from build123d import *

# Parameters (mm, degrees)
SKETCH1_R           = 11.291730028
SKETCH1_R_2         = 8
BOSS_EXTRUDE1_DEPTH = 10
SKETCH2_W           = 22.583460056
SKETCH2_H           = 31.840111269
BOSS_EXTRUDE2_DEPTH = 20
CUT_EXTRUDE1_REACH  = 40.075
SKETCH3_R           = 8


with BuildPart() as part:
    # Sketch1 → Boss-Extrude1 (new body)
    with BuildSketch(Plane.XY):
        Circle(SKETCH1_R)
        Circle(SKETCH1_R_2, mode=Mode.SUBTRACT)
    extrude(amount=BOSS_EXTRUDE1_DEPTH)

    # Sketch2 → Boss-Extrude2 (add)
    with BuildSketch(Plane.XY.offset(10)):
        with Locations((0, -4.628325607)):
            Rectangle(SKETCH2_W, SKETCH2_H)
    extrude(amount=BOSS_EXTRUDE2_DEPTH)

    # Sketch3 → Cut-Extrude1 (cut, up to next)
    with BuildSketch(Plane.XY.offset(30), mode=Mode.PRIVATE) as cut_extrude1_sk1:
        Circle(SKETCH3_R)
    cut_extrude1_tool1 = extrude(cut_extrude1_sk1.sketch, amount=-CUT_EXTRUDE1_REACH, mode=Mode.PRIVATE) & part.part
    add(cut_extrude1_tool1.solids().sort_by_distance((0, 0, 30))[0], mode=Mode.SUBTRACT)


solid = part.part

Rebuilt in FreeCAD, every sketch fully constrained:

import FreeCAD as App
import Part
import Sketcher
Q = App.Units.Quantity

doc = App.newDocument("Part")
body = doc.addObject("PartDesign::Body", "Body")

# Sketch on XY plane
sketch1 = body.newObject("Sketcher::SketchObject", "Sketch")
sketch1.AttachmentSupport = (doc.getObject("XY_Plane"), [""])
sketch1.MapMode = "FlatFace"
sketch1.addGeometry(Part.Circle(App.Vector(0, 0, 0), App.Vector(0, 0, 1), 11), False)
sketch1.addGeometry(Part.Circle(App.Vector(0, 0, 0), App.Vector(0, 0, 1), 8), False)
sketch1.addConstraint(Sketcher.Constraint("Coincident", 0, 3, -1, 1))
sketch1.addConstraint(Sketcher.Constraint("Coincident", 1, 3, -1, 1))
sketch1.addConstraint(Sketcher.Constraint("Diameter", 1, Q("16 mm")))
sketch1.addConstraint(Sketcher.Constraint("Diameter", 0, Q("22.58346 mm")))
pad1 = body.newObject("PartDesign::Pad", "Pad")
pad1.Profile = sketch1
pad1.Length = 10

# Sketch on XY plane
sketch2 = body.newObject("Sketcher::SketchObject", "Sketch001")
sketch2.AttachmentSupport = (doc.getObject("XY_Plane"), [""])
sketch2.MapMode = "FlatFace"
sketch2.AttachmentOffset = App.Placement(App.Vector(0, 0, 10), App.Rotation())
sketch2.addGeometry(Part.LineSegment(App.Vector(-11, 11, 0), App.Vector(-11, -21, 0)), False)
sketch2.addGeometry(Part.LineSegment(App.Vector(-11, -21, 0), App.Vector(11, -21, 0)), False)
sketch2.addGeometry(Part.LineSegment(App.Vector(11, -21, 0), App.Vector(11, 11, 0)), False)
sketch2.addGeometry(Part.LineSegment(App.Vector(11, 11, 0), App.Vector(-11, 11, 0)), False)
sketch2.addConstraint(Sketcher.Constraint("Coincident", 0, 2, 1, 1))
sketch2.addConstraint(Sketcher.Constraint("Coincident", 1, 2, 2, 1))
sketch2.addConstraint(Sketcher.Constraint("Coincident", 2, 2, 3, 1))
sketch2.addConstraint(Sketcher.Constraint("Coincident", 3, 2, 0, 1))
sketch2.addConstraint(Sketcher.Constraint("Vertical", 0))
sketch2.addConstraint(Sketcher.Constraint("Horizontal", 1))
sketch2.addConstraint(Sketcher.Constraint("Vertical", 2))
sketch2.addConstraint(Sketcher.Constraint("Horizontal", 3))
sketch2.addConstraint(Sketcher.Constraint("DistanceX", 1, 1, 1, 2, Q("22.58346 mm")))
sketch2.addConstraint(Sketcher.Constraint("DistanceY", 0, 2, 0, 1, Q("31.840111 mm")))
sketch2.addConstraint(Sketcher.Constraint("DistanceX", 0, 2, -1, 1, Q("11.29173 mm")))
sketch2.addConstraint(Sketcher.Constraint("DistanceY", 0, 2, -1, 1, Q("20.548381 mm")))
pad2 = body.newObject("PartDesign::Pad", "Pad001")
pad2.Profile = sketch2
pad2.Length = 20

# Sketch on XY plane
sketch3 = body.newObject("Sketcher::SketchObject", "Sketch002")
sketch3.AttachmentSupport = (doc.getObject("XY_Plane"), [""])
sketch3.MapMode = "FlatFace"
sketch3.AttachmentOffset = App.Placement(App.Vector(0, 0, 30), App.Rotation())
sketch3.addGeometry(Part.Circle(App.Vector(0, 0, 0), App.Vector(0, 0, 1), 8), False)
sketch3.addConstraint(Sketcher.Constraint("Coincident", 0, 3, -1, 1))
sketch3.addConstraint(Sketcher.Constraint("Diameter", 0, Q("16 mm")))
pocket1 = body.newObject("PartDesign::Pocket", "Pocket")
pocket1.Profile = sketch3
pocket1.Type = "UpToFirst"

doc.recompute()
